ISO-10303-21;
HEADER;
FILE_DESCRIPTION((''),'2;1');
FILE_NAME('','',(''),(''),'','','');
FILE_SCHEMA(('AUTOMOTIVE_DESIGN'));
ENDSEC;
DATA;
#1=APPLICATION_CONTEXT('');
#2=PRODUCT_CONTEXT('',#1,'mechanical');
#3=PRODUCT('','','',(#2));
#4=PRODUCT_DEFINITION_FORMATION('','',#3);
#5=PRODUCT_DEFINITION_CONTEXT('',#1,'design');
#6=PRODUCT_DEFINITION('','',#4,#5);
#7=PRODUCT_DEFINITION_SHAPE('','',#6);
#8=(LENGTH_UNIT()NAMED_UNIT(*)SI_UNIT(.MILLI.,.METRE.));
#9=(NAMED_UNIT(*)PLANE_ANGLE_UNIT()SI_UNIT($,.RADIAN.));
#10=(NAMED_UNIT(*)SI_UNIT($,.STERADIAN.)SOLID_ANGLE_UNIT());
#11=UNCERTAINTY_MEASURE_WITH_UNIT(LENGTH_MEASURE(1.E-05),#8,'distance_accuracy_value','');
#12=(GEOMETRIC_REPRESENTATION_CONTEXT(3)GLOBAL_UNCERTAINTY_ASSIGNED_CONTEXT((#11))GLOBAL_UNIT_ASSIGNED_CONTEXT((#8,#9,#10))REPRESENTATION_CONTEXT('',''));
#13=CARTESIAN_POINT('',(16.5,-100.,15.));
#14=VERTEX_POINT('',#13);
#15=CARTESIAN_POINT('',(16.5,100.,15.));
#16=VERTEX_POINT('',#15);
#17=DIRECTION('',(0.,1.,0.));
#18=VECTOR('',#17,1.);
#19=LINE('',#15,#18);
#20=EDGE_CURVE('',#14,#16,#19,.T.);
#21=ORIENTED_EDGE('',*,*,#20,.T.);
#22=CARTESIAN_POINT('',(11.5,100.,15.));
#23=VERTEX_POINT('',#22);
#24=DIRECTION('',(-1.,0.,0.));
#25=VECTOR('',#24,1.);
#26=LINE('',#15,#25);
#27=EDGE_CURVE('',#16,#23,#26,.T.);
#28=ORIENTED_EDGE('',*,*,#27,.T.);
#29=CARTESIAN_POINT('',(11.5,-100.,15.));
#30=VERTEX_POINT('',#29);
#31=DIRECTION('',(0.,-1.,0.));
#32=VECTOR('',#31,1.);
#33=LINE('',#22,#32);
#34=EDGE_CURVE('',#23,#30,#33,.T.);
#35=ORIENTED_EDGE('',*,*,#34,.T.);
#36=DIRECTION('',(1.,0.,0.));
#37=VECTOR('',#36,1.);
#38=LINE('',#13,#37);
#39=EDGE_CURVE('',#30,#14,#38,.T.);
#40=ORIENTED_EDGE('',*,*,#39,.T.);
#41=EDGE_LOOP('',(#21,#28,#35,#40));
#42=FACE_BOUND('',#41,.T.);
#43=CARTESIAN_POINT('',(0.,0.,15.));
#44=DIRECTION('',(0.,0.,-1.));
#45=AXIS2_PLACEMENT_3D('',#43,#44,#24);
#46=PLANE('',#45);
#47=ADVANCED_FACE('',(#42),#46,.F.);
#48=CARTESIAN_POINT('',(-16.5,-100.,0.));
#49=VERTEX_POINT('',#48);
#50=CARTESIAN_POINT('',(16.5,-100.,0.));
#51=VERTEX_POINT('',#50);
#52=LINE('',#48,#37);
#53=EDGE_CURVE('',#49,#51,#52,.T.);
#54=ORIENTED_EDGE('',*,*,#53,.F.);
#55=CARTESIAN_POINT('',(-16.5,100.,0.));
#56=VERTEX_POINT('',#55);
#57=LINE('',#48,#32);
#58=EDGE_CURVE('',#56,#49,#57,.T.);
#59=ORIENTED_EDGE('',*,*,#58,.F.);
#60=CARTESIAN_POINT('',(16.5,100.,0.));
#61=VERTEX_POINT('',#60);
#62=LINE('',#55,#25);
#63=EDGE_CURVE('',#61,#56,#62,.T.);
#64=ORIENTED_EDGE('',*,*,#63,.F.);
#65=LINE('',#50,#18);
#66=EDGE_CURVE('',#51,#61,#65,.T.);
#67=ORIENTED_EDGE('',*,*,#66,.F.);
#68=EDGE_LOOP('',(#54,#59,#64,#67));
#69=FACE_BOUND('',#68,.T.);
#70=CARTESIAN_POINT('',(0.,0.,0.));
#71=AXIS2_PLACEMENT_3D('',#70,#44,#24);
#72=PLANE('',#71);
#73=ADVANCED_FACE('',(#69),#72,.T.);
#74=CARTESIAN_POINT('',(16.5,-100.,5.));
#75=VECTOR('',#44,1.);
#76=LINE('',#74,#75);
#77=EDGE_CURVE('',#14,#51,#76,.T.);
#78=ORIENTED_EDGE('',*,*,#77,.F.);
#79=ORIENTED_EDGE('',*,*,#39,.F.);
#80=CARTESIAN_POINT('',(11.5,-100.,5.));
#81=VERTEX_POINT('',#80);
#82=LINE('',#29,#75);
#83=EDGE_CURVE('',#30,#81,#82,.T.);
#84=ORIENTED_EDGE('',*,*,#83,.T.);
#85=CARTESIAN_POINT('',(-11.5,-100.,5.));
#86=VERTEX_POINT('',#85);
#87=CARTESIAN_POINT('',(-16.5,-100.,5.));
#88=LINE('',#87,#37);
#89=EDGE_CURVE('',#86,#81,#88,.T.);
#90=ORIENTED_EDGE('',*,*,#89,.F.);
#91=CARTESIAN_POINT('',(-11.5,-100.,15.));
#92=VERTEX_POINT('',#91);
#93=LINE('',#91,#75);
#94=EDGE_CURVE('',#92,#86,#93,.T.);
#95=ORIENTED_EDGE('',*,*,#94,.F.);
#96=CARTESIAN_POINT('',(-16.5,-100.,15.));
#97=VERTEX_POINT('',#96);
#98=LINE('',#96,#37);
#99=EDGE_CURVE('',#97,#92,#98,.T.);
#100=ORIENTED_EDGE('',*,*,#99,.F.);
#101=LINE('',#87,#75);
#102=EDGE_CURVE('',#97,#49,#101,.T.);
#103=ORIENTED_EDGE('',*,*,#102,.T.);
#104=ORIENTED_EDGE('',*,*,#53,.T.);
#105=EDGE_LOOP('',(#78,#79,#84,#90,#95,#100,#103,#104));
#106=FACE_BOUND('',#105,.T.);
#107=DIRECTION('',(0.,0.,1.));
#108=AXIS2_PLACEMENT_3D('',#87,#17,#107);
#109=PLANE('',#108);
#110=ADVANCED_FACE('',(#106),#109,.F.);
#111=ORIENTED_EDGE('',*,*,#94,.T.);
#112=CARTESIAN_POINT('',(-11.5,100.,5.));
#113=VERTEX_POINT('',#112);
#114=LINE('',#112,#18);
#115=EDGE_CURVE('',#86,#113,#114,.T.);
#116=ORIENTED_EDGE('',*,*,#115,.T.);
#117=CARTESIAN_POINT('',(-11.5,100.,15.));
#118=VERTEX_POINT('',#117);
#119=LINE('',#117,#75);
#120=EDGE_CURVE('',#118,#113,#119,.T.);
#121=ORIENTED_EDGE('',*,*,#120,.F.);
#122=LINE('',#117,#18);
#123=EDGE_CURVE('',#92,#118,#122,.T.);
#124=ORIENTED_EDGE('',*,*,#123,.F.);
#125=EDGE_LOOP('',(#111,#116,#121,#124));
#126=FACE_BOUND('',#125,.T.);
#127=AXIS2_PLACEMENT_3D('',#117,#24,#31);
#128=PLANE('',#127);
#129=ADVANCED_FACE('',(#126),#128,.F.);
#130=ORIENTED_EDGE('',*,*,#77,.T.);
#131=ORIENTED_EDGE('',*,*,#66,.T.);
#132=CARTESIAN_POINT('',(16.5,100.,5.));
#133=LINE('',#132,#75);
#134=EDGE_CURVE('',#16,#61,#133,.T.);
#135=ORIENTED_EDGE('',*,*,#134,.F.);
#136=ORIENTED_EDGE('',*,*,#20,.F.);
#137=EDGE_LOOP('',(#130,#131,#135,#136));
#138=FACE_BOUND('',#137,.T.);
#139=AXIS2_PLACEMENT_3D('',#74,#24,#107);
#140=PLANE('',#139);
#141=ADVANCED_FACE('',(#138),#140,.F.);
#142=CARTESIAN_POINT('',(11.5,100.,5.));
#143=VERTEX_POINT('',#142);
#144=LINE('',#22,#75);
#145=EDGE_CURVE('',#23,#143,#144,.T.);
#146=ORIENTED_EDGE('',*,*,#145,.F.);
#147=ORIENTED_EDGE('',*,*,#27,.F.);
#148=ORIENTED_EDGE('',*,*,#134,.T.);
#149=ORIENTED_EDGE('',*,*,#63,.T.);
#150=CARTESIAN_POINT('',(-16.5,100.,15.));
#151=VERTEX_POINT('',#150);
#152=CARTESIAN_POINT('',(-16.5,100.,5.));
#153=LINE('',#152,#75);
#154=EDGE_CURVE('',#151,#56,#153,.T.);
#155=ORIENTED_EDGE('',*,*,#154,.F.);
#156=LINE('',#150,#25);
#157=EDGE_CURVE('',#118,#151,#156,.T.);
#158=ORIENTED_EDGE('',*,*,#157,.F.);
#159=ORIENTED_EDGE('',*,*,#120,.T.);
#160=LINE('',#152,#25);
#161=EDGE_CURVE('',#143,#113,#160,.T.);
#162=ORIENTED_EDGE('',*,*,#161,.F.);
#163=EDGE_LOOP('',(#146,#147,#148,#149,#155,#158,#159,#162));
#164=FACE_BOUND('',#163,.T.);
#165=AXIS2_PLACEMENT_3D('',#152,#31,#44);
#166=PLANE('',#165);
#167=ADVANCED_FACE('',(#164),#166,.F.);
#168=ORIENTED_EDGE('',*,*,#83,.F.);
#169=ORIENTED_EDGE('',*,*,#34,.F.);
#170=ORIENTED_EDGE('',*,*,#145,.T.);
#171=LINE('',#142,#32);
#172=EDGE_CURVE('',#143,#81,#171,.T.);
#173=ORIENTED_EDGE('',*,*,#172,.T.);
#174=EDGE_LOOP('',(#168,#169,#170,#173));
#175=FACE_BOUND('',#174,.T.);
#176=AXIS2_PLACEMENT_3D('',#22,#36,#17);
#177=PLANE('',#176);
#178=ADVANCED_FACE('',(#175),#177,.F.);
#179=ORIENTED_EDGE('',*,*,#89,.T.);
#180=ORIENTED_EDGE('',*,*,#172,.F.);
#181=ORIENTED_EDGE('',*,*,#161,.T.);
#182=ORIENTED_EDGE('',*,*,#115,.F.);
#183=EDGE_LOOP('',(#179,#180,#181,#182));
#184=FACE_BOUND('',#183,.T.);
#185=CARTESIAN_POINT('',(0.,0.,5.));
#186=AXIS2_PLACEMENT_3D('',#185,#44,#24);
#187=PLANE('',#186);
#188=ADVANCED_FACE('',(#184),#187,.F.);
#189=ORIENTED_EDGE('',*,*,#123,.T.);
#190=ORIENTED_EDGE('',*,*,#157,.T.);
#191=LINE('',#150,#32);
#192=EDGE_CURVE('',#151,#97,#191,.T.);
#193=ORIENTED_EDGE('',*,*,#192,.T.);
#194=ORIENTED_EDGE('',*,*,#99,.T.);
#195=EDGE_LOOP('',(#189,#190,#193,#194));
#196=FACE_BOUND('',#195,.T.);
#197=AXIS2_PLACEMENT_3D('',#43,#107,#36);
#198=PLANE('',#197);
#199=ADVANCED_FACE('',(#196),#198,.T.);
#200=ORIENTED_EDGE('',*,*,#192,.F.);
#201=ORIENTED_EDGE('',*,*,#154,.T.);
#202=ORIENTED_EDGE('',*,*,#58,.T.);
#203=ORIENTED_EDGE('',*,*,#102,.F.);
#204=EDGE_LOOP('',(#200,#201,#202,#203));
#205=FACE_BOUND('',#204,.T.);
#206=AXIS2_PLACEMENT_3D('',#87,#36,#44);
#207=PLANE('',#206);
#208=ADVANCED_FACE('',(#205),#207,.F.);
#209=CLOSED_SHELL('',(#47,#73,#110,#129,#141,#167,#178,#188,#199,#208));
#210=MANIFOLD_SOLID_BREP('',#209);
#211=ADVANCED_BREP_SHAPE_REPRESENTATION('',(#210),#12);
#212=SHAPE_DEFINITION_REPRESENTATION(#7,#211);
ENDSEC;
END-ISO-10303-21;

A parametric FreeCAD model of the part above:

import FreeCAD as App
import Part
import Sketcher
from FreeCAD import Vector

doc = App.newDocument("Part")
body = doc.addObject("PartDesign::Body", "Body")

# Sketch on XY plane
sketch1 = body.newObject("Sketcher::SketchObject", "Sketch")
sketch1.AttachmentSupport = (doc.getObject("XY_Plane"), [""])
sketch1.MapMode = "FlatFace"
sketch1.addGeometry(Part.LineSegment(Vector(-16.5, 100, 0), Vector(-16.5, -100, 0)), False)
sketch1.addGeometry(Part.LineSegment(Vector(-16.5, -100, 0), Vector(16.5, -100, 0)), False)
sketch1.addGeometry(Part.LineSegment(Vector(16.5, -100, 0), Vector(16.5, 100, 0)), False)
sketch1.addGeometry(Part.LineSegment(Vector(16.5, 100, 0), Vector(-16.5, 100, 0)), False)
sketch1.addConstraint(Sketcher.Constraint("Coincident", 0, 2, 1, 1))
sketch1.addConstraint(Sketcher.Constraint("Coincident", 1, 2, 2, 1))
sketch1.addConstraint(Sketcher.Constraint("Coincident", 2, 2, 3, 1))
sketch1.addConstraint(Sketcher.Constraint("Coincident", 3, 2, 0, 1))
sketch1.addConstraint(Sketcher.Constraint("Vertical", 0))
sketch1.addConstraint(Sketcher.Constraint("Horizontal", 1))
sketch1.addConstraint(Sketcher.Constraint("Vertical", 2))
sketch1.addConstraint(Sketcher.Constraint("Horizontal", 3))
sketch1.addConstraint(Sketcher.Constraint("Symmetric", 0, 2, 2, 2, -1, 1))
sketch1.addConstraint(Sketcher.Constraint("DistanceX", 1, 1, 1, 2, 33.0))
sketch1.addConstraint(Sketcher.Constraint("DistanceY", 0, 2, 0, 1, 200.0))
pad1 = body.newObject("PartDesign::Pad", "Pad")
pad1.Profile = sketch1
pad1.Length = 5

# Sketch on XY plane
sketch2 = body.newObject("Sketcher::SketchObject", "Sketch001")
sketch2.AttachmentSupport = (doc.getObject("XY_Plane"), [""])
sketch2.MapMode = "FlatFace"
sketch2.AttachmentOffset = App.Placement(Vector(0, 0, 5), App.Rotation())
sketch2.addGeometry(Part.LineSegment(Vector(-16.5, 100, 0), Vector(-16.5, -100, 0)), False)
sketch2.addGeometry(Part.LineSegment(Vector(-16.5, -100, 0), Vector(-11.5, -100, 0)), False)
sketch2.addGeometry(Part.LineSegment(Vector(-11.5, -100, 0), Vector(-11.5, 100, 0)), False)
sketch2.addGeometry(Part.LineSegment(Vector(-11.5, 100, 0), Vector(-16.5, 100, 0)), False)
sketch2.addGeometry(Part.LineSegment(Vector(11.5, 100, 0), Vector(11.5, -100, 0)), False)
sketch2.addGeometry(Part.LineSegment(Vector(11.5, -100, 0), Vector(16.5, -100, 0)), False)
sketch2.addGeometry(Part.LineSegment(Vector(16.5, -100, 0), Vector(16.5, 100, 0)), False)
sketch2.addGeometry(Part.LineSegment(Vector(16.5, 100, 0), Vector(11.5, 100, 0)), False)
sketch2.addConstraint(Sketcher.Constraint("Coincident", 0, 2, 1, 1))
sketch2.addConstraint(Sketcher.Constraint("Coincident", 1, 2, 2, 1))
sketch2.addConstraint(Sketcher.Constraint("Coincident", 2, 2, 3, 1))
sketch2.addConstraint(Sketcher.Constraint("Coincident", 3, 2, 0, 1))
sketch2.addConstraint(Sketcher.Constraint("Coincident", 4, 2, 5, 1))
sketch2.addConstraint(Sketcher.Constraint("Coincident", 5, 2, 6, 1))
sketch2.addConstraint(Sketcher.Constraint("Coincident", 6, 2, 7, 1))
sketch2.addConstraint(Sketcher.Constraint("Coincident", 7, 2, 4, 1))
sketch2.addConstraint(Sketcher.Constraint("Vertical", 0))
sketch2.addConstraint(Sketcher.Constraint("Horizontal", 1))
sketch2.addConstraint(Sketcher.Constraint("Vertical", 2))
sketch2.addConstraint(Sketcher.Constraint("Horizontal", 3))
sketch2.addConstraint(Sketcher.Constraint("Vertical", 4))
sketch2.addConstraint(Sketcher.Constraint("Horizontal", 5))
sketch2.addConstraint(Sketcher.Constraint("Vertical", 6))
sketch2.addConstraint(Sketcher.Constraint("Horizontal", 7))
sketch2.addConstraint(Sketcher.Constraint("Symmetric", 2, 2, 4, 2, -1, 1))
sketch2.addConstraint(Sketcher.Constraint("Symmetric", 0, 2, 6, 2, -1, 1))
sketch2.addConstraint(Sketcher.Constraint("Horizontal", 1, 2, 4, 2))
sketch2.addConstraint(Sketcher.Constraint("DistanceX", 1, 1, 1, 2, 5.0))
sketch2.addConstraint(Sketcher.Constraint("DistanceY", 0, 2, 0, 1, 200.0))
sketch2.addConstraint(Sketcher.Constraint("DistanceX", 1, 2, 4, 2, 23.0))
pad2 = body.newObject("PartDesign::Pad", "Pad001")
pad2.Profile = sketch2
pad2.Length = 10

doc.recompute()
